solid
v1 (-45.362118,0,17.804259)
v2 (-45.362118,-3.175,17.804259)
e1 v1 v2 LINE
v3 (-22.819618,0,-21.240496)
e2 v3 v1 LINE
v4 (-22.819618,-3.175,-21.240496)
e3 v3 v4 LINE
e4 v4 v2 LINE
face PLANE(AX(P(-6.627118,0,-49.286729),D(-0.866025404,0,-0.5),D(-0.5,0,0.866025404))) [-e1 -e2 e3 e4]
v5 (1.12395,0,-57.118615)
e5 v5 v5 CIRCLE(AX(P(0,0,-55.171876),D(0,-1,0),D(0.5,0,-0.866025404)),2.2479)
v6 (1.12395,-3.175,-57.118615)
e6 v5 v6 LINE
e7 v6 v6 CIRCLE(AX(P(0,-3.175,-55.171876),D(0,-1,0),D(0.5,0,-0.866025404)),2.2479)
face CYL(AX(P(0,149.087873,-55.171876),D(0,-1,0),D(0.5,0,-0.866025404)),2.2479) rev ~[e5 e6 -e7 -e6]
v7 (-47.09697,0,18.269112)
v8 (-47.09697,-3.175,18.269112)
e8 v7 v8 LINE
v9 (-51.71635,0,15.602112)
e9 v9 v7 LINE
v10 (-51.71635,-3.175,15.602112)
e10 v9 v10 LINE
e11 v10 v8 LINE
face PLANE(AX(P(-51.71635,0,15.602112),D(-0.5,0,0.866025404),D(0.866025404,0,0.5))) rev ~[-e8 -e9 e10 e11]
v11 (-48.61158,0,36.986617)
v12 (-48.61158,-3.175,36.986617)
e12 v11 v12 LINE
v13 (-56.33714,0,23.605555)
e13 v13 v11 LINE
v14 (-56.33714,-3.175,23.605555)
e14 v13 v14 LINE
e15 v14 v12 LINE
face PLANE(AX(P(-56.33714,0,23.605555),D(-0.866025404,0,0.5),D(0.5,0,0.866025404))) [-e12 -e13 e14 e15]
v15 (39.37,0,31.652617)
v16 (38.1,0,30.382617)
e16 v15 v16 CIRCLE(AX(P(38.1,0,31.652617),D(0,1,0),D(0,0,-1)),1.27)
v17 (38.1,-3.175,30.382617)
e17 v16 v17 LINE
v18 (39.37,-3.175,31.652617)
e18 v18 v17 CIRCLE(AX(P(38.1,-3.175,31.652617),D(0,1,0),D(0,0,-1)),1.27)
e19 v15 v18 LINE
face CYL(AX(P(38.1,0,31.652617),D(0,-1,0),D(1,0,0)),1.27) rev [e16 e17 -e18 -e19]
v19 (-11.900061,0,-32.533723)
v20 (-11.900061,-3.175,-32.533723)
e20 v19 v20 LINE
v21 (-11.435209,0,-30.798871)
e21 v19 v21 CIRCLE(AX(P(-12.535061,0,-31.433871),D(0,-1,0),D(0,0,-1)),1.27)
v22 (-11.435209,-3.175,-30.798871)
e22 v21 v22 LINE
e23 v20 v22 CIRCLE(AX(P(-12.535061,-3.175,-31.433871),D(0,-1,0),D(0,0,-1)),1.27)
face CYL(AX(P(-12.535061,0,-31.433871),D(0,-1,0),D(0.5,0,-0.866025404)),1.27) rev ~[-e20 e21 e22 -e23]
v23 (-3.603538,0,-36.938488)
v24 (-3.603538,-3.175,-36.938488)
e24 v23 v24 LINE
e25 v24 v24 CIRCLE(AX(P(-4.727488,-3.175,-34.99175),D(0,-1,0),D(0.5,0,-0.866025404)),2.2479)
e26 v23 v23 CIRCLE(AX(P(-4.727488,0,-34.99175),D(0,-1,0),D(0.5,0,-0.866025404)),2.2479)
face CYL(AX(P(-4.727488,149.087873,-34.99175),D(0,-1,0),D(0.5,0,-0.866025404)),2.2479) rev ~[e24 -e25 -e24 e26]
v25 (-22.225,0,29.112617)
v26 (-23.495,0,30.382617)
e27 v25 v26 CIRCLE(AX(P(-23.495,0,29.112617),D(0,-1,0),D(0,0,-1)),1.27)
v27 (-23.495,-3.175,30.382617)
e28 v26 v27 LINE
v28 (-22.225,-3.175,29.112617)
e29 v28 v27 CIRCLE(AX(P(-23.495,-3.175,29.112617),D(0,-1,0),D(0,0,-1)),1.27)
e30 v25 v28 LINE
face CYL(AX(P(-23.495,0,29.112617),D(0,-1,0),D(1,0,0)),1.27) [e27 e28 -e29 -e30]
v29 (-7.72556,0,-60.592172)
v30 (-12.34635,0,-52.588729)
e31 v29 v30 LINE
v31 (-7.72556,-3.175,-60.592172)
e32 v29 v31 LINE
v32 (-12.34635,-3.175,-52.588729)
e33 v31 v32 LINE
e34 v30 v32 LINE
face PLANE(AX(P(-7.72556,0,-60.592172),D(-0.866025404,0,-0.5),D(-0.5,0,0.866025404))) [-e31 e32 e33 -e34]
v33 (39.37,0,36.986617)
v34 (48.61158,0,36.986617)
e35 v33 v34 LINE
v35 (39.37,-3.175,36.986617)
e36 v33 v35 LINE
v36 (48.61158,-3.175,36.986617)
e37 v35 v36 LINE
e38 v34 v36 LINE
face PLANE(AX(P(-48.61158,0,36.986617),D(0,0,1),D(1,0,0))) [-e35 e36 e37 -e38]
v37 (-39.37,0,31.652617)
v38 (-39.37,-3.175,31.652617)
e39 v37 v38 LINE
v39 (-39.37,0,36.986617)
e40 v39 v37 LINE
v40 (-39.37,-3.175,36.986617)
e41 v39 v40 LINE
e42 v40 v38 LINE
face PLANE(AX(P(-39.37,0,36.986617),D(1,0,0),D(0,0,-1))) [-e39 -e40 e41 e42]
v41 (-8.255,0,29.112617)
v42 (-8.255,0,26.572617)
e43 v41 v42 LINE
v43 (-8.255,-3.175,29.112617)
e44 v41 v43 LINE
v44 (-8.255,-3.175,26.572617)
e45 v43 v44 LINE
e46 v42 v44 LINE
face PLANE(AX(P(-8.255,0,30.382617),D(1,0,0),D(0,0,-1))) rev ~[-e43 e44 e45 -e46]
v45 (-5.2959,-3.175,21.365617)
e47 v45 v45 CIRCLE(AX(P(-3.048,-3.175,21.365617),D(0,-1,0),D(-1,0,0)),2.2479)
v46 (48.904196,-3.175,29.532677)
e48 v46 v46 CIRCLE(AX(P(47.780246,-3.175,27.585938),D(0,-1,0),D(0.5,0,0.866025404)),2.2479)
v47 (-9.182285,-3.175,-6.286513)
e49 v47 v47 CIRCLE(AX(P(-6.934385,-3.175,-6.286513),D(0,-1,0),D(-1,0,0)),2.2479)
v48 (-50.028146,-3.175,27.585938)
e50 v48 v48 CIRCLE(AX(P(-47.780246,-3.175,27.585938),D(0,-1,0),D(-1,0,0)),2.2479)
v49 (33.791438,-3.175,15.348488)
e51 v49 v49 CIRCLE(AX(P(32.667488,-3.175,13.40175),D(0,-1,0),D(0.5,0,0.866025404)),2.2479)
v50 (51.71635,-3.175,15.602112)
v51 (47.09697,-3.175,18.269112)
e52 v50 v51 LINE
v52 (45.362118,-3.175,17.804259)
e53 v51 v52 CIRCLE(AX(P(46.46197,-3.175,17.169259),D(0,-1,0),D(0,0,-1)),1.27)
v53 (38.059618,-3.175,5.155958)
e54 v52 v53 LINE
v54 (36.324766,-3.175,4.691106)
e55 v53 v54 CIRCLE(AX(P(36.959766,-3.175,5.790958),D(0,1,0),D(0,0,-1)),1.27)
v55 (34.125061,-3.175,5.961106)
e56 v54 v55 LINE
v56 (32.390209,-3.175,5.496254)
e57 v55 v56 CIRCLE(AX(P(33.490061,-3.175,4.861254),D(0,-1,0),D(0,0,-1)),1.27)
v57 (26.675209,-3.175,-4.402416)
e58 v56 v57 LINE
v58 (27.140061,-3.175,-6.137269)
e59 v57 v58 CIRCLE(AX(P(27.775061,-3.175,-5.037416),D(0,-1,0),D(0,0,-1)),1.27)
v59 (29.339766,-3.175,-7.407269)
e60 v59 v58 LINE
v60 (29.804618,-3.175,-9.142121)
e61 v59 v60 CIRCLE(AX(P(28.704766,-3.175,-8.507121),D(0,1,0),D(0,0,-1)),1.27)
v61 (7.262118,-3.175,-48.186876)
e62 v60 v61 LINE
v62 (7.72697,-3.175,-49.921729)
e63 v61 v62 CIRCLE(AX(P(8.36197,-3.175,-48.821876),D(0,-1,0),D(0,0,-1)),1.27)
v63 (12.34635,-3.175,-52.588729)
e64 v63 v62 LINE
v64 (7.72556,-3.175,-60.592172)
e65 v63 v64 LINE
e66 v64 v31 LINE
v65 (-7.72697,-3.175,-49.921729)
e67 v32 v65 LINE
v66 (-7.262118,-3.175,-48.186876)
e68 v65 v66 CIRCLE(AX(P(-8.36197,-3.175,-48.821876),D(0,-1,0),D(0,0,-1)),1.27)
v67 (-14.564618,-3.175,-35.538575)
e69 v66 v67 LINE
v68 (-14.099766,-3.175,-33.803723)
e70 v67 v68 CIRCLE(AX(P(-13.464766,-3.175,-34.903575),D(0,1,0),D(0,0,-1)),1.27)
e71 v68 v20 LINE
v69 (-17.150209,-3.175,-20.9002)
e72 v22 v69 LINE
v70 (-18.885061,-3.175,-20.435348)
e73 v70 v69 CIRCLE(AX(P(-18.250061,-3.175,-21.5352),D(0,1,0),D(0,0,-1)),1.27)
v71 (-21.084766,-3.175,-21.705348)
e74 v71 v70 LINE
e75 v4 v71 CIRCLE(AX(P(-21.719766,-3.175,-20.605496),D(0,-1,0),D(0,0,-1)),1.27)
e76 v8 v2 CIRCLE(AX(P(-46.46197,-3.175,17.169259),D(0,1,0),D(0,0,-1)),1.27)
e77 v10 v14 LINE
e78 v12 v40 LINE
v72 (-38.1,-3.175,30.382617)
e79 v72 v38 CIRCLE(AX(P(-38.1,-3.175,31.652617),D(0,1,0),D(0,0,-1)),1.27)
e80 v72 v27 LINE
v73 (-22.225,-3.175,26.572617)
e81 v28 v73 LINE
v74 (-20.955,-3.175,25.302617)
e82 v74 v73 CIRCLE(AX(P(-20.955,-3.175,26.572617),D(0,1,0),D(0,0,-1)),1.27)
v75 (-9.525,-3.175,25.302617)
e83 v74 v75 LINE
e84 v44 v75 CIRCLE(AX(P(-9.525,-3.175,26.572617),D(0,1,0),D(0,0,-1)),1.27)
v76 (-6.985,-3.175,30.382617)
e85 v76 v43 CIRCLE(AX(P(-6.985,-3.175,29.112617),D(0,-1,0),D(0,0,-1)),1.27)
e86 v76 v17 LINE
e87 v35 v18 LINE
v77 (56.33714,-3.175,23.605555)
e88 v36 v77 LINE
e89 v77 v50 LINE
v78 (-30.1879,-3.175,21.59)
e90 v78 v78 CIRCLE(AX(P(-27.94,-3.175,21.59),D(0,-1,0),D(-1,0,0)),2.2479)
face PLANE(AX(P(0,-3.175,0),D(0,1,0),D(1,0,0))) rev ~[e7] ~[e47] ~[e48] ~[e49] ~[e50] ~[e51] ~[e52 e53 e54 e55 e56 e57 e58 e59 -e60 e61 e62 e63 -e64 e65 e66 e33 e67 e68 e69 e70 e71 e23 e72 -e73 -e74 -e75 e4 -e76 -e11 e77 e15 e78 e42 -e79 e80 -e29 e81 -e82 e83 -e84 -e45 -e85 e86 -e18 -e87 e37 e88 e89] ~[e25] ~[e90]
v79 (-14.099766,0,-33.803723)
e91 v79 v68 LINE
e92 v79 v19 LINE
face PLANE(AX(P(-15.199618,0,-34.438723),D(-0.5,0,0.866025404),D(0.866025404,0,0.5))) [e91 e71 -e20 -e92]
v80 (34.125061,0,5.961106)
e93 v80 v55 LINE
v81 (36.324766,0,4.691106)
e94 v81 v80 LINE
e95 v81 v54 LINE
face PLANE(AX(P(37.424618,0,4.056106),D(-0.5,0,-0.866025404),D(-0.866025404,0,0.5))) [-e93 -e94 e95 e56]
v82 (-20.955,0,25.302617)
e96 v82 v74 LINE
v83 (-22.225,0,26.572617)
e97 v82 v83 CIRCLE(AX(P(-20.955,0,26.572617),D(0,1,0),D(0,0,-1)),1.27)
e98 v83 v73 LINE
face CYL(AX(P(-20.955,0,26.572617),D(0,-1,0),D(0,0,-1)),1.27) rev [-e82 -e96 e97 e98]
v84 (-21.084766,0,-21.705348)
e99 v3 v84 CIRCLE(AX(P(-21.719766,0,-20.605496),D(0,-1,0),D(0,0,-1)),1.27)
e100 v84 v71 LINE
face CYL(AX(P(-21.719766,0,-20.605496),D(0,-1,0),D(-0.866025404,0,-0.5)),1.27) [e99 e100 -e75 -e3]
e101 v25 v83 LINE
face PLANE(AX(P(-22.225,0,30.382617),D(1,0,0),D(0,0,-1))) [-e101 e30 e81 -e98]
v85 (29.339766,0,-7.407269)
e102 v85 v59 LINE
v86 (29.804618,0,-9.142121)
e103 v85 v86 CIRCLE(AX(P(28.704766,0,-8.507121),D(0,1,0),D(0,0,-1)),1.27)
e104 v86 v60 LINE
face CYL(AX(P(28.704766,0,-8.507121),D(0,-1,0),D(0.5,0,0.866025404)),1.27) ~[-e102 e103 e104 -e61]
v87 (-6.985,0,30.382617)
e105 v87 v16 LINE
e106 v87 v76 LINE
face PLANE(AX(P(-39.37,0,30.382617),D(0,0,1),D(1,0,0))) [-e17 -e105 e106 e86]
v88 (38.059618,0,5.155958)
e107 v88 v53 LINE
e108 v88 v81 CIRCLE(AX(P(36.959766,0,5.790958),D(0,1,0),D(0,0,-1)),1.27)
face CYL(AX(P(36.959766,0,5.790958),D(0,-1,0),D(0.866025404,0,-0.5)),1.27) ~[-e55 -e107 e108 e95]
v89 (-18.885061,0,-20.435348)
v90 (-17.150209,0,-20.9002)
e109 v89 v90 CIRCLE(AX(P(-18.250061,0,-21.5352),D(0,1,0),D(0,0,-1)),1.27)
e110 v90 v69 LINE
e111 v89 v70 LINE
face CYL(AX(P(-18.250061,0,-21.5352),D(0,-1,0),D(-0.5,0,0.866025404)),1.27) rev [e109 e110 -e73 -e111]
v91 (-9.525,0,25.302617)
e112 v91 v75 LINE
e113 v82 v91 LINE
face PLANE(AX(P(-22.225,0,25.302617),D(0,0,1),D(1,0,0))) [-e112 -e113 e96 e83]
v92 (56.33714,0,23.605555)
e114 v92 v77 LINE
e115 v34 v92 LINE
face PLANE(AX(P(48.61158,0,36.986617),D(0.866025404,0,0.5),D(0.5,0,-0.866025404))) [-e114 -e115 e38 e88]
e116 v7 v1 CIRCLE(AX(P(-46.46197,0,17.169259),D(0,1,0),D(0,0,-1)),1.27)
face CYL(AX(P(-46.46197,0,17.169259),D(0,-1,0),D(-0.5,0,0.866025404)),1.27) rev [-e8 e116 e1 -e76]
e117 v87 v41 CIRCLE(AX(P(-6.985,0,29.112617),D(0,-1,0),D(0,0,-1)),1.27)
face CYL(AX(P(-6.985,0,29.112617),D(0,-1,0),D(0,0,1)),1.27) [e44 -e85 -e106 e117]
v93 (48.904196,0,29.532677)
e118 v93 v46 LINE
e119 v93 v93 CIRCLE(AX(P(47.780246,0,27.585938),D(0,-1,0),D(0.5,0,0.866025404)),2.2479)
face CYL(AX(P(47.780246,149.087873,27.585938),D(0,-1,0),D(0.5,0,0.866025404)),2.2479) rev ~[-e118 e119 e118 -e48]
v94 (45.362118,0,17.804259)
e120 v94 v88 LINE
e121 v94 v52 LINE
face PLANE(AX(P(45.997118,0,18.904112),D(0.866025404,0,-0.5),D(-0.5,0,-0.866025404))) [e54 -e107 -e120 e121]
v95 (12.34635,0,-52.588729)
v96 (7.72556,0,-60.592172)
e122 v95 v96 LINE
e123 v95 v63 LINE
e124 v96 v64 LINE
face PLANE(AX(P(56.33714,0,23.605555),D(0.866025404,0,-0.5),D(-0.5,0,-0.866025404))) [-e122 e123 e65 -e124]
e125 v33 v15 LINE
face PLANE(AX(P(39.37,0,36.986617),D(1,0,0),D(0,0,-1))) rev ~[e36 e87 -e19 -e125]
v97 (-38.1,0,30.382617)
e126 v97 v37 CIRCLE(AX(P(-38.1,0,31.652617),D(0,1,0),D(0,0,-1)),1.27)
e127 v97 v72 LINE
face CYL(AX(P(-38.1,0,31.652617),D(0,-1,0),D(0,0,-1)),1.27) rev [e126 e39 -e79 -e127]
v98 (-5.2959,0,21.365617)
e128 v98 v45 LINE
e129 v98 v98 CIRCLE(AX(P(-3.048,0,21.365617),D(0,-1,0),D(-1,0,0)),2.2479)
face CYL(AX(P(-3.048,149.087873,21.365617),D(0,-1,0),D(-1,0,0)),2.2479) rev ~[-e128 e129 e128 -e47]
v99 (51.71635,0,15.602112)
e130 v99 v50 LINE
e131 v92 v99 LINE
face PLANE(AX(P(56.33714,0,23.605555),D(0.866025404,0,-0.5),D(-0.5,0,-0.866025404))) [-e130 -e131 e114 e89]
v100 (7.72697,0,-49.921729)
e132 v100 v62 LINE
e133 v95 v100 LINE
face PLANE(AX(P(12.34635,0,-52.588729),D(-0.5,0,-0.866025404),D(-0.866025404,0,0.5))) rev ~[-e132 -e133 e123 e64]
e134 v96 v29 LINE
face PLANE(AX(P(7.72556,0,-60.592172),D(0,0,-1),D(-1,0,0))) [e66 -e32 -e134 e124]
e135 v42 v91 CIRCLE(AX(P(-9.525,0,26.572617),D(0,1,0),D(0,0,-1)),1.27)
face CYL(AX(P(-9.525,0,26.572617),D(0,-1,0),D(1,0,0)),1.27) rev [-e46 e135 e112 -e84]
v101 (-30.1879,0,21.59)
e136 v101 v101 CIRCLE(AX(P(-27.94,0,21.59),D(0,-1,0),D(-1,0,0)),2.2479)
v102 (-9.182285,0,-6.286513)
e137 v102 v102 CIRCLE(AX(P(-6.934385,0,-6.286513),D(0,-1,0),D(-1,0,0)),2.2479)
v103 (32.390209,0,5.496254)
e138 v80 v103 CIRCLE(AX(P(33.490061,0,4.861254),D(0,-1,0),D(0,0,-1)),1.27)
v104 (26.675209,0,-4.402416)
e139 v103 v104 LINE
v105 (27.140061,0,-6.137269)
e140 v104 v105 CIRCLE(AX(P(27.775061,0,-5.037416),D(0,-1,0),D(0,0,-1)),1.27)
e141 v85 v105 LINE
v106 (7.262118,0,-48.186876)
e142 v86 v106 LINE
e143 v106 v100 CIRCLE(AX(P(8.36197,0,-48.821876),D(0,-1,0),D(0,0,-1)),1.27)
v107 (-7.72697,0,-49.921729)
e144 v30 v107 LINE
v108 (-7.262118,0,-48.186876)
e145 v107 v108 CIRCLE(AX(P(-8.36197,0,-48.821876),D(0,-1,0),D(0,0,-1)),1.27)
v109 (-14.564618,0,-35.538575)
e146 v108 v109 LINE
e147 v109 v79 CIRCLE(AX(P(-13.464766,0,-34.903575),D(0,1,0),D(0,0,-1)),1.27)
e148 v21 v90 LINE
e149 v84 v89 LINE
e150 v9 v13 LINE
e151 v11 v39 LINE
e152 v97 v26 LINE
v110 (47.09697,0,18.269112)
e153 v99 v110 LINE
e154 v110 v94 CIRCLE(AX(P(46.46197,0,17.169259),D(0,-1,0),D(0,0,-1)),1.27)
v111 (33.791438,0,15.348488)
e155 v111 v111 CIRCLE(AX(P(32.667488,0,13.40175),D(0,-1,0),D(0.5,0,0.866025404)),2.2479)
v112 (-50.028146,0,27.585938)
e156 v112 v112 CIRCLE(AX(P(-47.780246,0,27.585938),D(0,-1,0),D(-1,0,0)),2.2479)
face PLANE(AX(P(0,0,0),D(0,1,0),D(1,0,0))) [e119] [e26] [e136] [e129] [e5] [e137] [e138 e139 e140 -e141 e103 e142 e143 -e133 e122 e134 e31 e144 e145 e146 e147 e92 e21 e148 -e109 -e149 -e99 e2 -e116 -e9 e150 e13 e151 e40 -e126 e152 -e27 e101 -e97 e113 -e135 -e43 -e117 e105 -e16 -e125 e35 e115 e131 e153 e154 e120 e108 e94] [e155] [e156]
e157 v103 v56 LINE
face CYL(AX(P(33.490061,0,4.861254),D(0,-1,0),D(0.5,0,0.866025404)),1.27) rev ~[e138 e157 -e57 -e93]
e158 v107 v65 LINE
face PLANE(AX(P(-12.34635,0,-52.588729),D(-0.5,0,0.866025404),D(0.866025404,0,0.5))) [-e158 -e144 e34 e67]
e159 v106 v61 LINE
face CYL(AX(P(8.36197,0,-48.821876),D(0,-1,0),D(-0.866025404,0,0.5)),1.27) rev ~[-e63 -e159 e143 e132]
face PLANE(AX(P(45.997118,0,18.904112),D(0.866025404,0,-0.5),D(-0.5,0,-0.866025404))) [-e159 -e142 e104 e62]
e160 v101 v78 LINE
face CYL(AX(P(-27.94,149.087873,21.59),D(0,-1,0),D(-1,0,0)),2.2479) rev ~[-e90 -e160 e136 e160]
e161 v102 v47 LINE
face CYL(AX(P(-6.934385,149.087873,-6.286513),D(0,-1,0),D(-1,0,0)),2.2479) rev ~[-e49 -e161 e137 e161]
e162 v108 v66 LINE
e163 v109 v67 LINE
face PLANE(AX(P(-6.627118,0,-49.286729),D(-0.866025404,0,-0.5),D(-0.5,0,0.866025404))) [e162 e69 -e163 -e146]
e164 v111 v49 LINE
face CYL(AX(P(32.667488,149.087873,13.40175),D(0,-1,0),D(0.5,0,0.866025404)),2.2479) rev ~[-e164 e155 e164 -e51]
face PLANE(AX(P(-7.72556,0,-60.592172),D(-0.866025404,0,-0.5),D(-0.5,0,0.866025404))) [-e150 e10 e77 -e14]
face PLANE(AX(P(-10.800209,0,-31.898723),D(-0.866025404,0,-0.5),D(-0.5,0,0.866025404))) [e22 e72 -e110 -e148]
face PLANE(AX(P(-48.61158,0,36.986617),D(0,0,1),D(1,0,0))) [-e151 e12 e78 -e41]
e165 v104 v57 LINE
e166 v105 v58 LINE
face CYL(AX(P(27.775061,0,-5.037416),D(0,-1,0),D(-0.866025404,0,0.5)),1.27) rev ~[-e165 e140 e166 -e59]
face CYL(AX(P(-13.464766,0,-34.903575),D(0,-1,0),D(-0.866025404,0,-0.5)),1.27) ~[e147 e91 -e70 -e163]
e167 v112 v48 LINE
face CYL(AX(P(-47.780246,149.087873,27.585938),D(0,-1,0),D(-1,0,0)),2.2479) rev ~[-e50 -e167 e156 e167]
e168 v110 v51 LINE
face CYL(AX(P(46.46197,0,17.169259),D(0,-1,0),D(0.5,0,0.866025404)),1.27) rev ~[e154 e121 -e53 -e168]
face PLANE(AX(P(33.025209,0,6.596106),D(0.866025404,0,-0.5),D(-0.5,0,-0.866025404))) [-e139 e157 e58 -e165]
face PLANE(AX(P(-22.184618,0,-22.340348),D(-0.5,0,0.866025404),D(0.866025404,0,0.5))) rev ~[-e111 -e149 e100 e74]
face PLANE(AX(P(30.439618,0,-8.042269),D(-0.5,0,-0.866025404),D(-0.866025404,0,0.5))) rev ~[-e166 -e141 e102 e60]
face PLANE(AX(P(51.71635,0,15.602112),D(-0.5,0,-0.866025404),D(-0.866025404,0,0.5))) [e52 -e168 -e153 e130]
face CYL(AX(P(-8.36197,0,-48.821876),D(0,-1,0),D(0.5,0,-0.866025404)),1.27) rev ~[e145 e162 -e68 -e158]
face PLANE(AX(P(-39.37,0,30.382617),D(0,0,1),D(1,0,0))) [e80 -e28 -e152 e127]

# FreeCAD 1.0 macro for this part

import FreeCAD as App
import Part
import Sketcher
from FreeCAD import Vector
Q = App.Units.Quantity


def edges_at(feature, points):
    """Names of the edges that pass closest to the given points."""
    edges = feature.Shape.Edges
    near = lambda p: min(range(len(edges)), key=lambda i: edges[i].distToShape(Part.Vertex(*p))[0])
    return sorted({f"Edge{near(p) + 1}" for p in points})


def add_polygon(sketch, points):
    """Adds a closed chain of lines whose ends are joined by coincident constraints."""
    first, n = sketch.GeometryCount, len(points)
    for a, b in zip(points, points[1:] + points[:1]):
        sketch.addGeometry(Part.LineSegment(App.Vector(*a, 0), App.Vector(*b, 0)), False)
    for i in range(n):
        sketch.addConstraint(Sketcher.Constraint("Coincident", first + i, 2, first + (i + 1) % n, 1))

doc = App.newDocument("Part")
body = doc.addObject("PartDesign::Body", "Body")

sketch1 = body.newObject("Sketcher::SketchObject", "Sketch")
sketch1.AttachmentSupport = (doc.getObject("XZ_Plane"), [""])
sketch1.MapMode = "FlatFace"
add_polygon(sketch1, [(48.61158, 36.986617), (56.33714, 23.605555), (7.72556, -60.592172), (-7.72556, -60.592172), (-56.33714, 23.605555), (-48.61158, 36.986617)])
sketch1.addConstraint([
    Sketcher.Constraint("Horizontal", 2),
    Sketcher.Constraint("Horizontal", 5),
    Sketcher.Constraint("Symmetric", 0, 2, 3, 2, -2),
    Sketcher.Constraint("Parallel", 0, 3),
    Sketcher.Constraint("Parallel", 1, 4),
    Sketcher.Constraint("Equal", 1, 3),
    Sketcher.Constraint("Angle", 0, Q("-60 deg")),
    Sketcher.Constraint("DistanceX", 2, 2, 2, 1, Q("15.451119 mm")),
    Sketcher.Constraint("DistanceX", 5, 1, 5, 2, Q("97.22316 mm")),
    Sketcher.Constraint("DistanceX", 2, 2, 0, 2, Q("64.0627 mm")),
    Sketcher.Constraint("DistanceY", 1, 2, -1, 1, Q("60.592172 mm")),
])
pad1 = body.newObject("PartDesign::Pad", "Pad")
pad1.Profile = sketch1
pad1.Length = Q("0.125 in")

sketch2 = body.newObject("Sketcher::SketchObject", "Sketch001")
sketch2.AttachmentSupport = (doc.getObject("XZ_Plane"), [""])
sketch2.MapMode = "FlatFace"
add_polygon(sketch2, [(-39.37, 30.382617), (-39.37, 36.986617), (39.37, 36.986617), (39.37, 30.382617)])
sketch2.addConstraint([
    Sketcher.Constraint("Vertical", 0),
    Sketcher.Constraint("Horizontal", 1),
    Sketcher.Constraint("Vertical", 2),
    Sketcher.Constraint("Horizontal", 3),
    Sketcher.Constraint("DistanceX", 1, 1, 1, 2, Q("3.1 in")),
    Sketcher.Constraint("DistanceY", 0, 1, 0, 2, Q("0.26 in")),
    Sketcher.Constraint("DistanceX", 0, 2, -1, 1, Q("1.55 in")),
    Sketcher.Constraint("DistanceY", -1, 1, 0, 2, Q("36.986617 mm")),
])
pocket1 = body.newObject("PartDesign::Pocket", "Pocket")
pocket1.Profile = sketch2
pocket1.Type = "ThroughAll"
pocket1.Reversed = True

sketch3 = body.newObject("Sketcher::SketchObject", "Sketch002")
sketch3.AttachmentSupport = (doc.getObject("XZ_Plane"), [""])
sketch3.MapMode = "FlatFace"
add_polygon(sketch3, [(-22.225, 25.302617), (-22.225, 30.382617), (-8.255, 30.382617), (-8.255, 25.302617)])
sketch3.addConstraint([
    Sketcher.Constraint("Vertical", 0),
    Sketcher.Constraint("Horizontal", 1),
    Sketcher.Constraint("Vertical", 2),
    Sketcher.Constraint("Horizontal", 3),
    Sketcher.Constraint("DistanceY", 0, 1, 0, 2, Q("0.2 in")),
    Sketcher.Constraint("DistanceX", 1, 1, 1, 2, Q("0.55 in")),
    Sketcher.Constraint("DistanceX", 0, 2, -1, 1, Q("0.875 in")),
    Sketcher.Constraint("DistanceY", -1, 1, 0, 2, Q("30.382617 mm")),
])
pocket2 = body.newObject("PartDesign::Pocket", "Pocket001")
pocket2.Profile = sketch3
pocket2.Type = "ThroughAll"
pocket2.Reversed = True
doc.recompute()

fillet = body.newObject("PartDesign::Fillet", "Fillet")
fillet.Base = (pocket2, edges_at(pocket2, [
    (-39.37, -1.587, 30.383),
    (39.37, -1.587, 30.383),
    (-22.225, -1.587, 30.383),
    (-22.225, -1.587, 25.303),
    (-8.255, -1.587, 25.303),
    (-8.255, -1.587, 30.383),
]))
fillet.Radius = Q("0.05 in")

sketch4 = body.newObject("Sketcher::SketchObject", "Sketch003")
sketch4.AttachmentSupport = (doc.getObject("XZ_Plane"), [""])
sketch4.MapMode = "FlatFace"
sketch4.addGeometry(Part.Circle(Vector(-47.780246, 27.585938, 0), Vector(0, 0, 1), 2.2479), False)
sketch4.addConstraint([
    Sketcher.Constraint("Diameter", 0, Q("0.177 in")),
    Sketcher.Constraint("DistanceY", -1, 1, 0, 3, Q("27.585938 mm")),
    Sketcher.Constraint("DistanceX", 0, 3, -1, 1, Q("47.780246 mm")),
])
doc.recompute()
hole = body.newObject("PartDesign::Hole", "Hole")
hole.Profile = sketch4
hole.ThreadType = "None"
hole.Diameter = Q("0.177 in")
hole.DepthType = "ThroughAll"
hole.Reversed = True
doc.recompute()

polarpattern = body.newObject("PartDesign::PolarPattern", "PolarPattern")
polarpattern.Originals = [pocket1, pocket2, hole]
polarpattern.Axis = (doc.getObject("Y_Axis"), [""])
polarpattern.Angle = 360
polarpattern.Occurrences = 3
body.Tip = polarpattern
doc.recompute()

fillet2 = body.newObject("PartDesign::Fillet", "Fillet001")
fillet2.Base = (polarpattern, edges_at(polarpattern, [
    (45.997, -1.587, 18.904),
    (6.627, -1.587, -49.287),
    (37.425, -1.587, 4.056),
    (33.025, -1.587, 6.596),
    (26.04, -1.587, -5.502),
    (30.44, -1.587, -8.042),
    (-6.627, -1.587, -49.287),
    (-45.997, -1.587, 18.904),
    (-15.2, -1.587, -34.439),
    (-10.8, -1.587, -31.899),
    (-17.785, -1.587, -19.8),
    (-22.185, -1.587, -22.34),
]))
fillet2.Radius = Q("0.05 in")

sketch5 = body.newObject("Sketcher::SketchObject", "Sketch004")
sketch5.AttachmentSupport = (doc.getObject("XZ_Plane"), [""])
sketch5.MapMode = "FlatFace"
sketch5.addGeometry(Part.Circle(Vector(-27.94, 21.59, 0), Vector(0, 0, 1), 2.2479), False)
sketch5.addConstraint([
    Sketcher.Constraint("Diameter", 0, Q("0.177 in")),
    Sketcher.Constraint("DistanceX", 0, 3, -1, 1, Q("1.1 in")),
    Sketcher.Constraint("DistanceY", -1, 1, 0, 3, Q("0.85 in")),
])
doc.recompute()
hole2 = body.newObject("PartDesign::Hole", "Hole001")
hole2.Profile = sketch5
hole2.ThreadType = "None"
hole2.Diameter = Q("0.177 in")
hole2.DepthType = "ThroughAll"
hole2.Reversed = True
doc.recompute()

polarpattern2 = body.newObject("PartDesign::PolarPattern", "PolarPattern001")
polarpattern2.Originals = [hole2]
polarpattern2.Axis = (doc.getObject("Y_Axis"), [""])
polarpattern2.Angle = 360
polarpattern2.Occurrences = 3
body.Tip = polarpattern2

sketch6 = body.newObject("Sketcher::SketchObject", "Sketch005")
sketch6.AttachmentSupport = (doc.getObject("XZ_Plane"), [""])
sketch6.MapMode = "FlatFace"
sketch6.addGeometry([
    Part.Circle(Vector(-6.934385, -6.286513, 0), Vector(0, 0, 1), 2.2479),
    Part.Circle(Vector(-3.048, 21.365617, 0), Vector(0, 0, 1), 2.2479),
], False)
sketch6.addConstraint([
    Sketcher.Constraint("Equal", 0, 1),
    Sketcher.Constraint("Diameter", 0, Q("0.177 in")),
    Sketcher.Constraint("DistanceX", 1, 3, -1, 1, Q("0.12 in")),
    Sketcher.Constraint("DistanceY", 0, 3, 1, 3, Q("27.652129 mm")),
    Sketcher.Constraint("DistanceX", 0, 3, -1, 1, Q("6.934385 mm")),
    Sketcher.Constraint("DistanceY", 0, 3, -1, 1, Q("6.286513 mm")),
])
doc.recompute()
hole3 = body.newObject("PartDesign::Hole", "Hole002")
hole3.Profile = sketch6
hole3.ThreadType = "None"
hole3.Diameter = Q("0.177 in")
hole3.DepthType = "ThroughAll"
hole3.Reversed = True

doc.recompute()
